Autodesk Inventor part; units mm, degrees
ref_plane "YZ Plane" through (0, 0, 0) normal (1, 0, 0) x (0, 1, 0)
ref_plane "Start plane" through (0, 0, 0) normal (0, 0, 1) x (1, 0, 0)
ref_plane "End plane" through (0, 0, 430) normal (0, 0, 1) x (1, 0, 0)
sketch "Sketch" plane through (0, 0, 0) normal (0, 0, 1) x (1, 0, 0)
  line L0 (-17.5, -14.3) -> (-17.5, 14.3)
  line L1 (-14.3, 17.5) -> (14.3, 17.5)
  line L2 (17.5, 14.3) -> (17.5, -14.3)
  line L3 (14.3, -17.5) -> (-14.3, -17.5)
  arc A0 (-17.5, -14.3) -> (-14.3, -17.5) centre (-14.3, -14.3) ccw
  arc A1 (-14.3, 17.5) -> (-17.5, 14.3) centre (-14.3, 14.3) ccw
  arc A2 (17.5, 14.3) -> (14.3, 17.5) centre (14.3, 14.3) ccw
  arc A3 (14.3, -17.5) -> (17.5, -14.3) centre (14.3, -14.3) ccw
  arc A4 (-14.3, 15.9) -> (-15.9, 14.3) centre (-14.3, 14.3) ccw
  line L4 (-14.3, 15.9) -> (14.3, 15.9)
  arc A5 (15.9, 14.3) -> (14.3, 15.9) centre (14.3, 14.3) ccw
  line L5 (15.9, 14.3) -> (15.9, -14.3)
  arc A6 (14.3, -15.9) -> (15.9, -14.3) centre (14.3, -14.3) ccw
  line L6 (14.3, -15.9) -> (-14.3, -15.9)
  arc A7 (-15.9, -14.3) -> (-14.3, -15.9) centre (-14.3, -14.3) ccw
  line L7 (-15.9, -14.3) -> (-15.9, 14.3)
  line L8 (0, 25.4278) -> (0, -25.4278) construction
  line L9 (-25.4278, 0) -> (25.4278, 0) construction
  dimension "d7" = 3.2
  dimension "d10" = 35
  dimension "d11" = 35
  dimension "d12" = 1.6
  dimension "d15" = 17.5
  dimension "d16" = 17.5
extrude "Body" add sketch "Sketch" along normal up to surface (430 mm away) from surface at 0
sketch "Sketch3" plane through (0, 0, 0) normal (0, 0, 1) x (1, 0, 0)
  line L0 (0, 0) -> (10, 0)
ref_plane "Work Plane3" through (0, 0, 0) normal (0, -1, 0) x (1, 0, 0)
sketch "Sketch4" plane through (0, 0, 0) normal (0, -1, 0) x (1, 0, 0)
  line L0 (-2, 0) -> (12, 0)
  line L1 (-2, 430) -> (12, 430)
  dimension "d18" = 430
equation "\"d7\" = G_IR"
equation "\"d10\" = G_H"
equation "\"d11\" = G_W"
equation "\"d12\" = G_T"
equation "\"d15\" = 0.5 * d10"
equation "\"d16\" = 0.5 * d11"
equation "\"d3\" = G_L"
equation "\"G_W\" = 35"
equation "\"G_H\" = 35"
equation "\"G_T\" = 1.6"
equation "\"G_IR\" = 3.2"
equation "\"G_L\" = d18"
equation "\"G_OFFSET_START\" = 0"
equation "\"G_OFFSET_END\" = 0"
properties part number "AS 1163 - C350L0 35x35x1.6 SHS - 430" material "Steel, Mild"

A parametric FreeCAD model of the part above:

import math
import FreeCAD as App
import Part
import Sketcher

V = App.Vector
Q = App.Units.Quantity

doc = App.newDocument("Part")
body = doc.addObject("PartDesign::Body", "Body")

# Sketch on XY plane
sketch1 = doc.addObject("Sketcher::SketchObject", "Sketch")
body.addObject(sketch1)
sketch1.AttachmentSupport = (doc.XY_Plane, [""])
sketch1.MapMode = "FlatFace"
sketch1.addGeometry([
    Part.LineSegment(V(-17.5, 14.3, 0), V(-17.5, -14.3, 0)),  # 0
    Part.ArcOfCircle(Part.Circle(V(-14.3, -14.3, 0), V(0, 0, 1), 3.2), math.radians(180), math.radians(270)),  # 1
    Part.LineSegment(V(-14.3, -17.5, 0), V(14.3, -17.5, 0)),  # 2
    Part.ArcOfCircle(Part.Circle(V(14.3, -14.3, 0), V(0, 0, 1), 3.2), math.radians(-90), math.radians(0)),  # 3
    Part.LineSegment(V(17.5, -14.3, 0), V(17.5, 14.3, 0)),  # 4
    Part.ArcOfCircle(Part.Circle(V(14.3, 14.3, 0), V(0, 0, 1), 3.2), math.radians(0), math.radians(90)),  # 5
    Part.LineSegment(V(14.3, 17.5, 0), V(-14.3, 17.5, 0)),  # 6
    Part.ArcOfCircle(Part.Circle(V(-14.3, 14.3, 0), V(0, 0, 1), 3.2), math.radians(90), math.radians(180)),  # 7
    Part.ArcOfCircle(Part.Circle(V(-14.3, 14.3, 0), V(0, 0, 1), 1.6), math.radians(90), math.radians(180)),  # 8
    Part.LineSegment(V(-14.3, 15.9, 0), V(14.3, 15.9, 0)),  # 9
    Part.ArcOfCircle(Part.Circle(V(14.3, 14.3, 0), V(0, 0, 1), 1.6), math.radians(0), math.radians(90)),  # 10
    Part.LineSegment(V(15.9, 14.3, 0), V(15.9, -14.3, 0)),  # 11
    Part.ArcOfCircle(Part.Circle(V(14.3, -14.3, 0), V(0, 0, 1), 1.6), math.radians(-90), math.radians(0)),  # 12
    Part.LineSegment(V(14.3, -15.9, 0), V(-14.3, -15.9, 0)),  # 13
    Part.ArcOfCircle(Part.Circle(V(-14.3, -14.3, 0), V(0, 0, 1), 1.6), math.radians(180), math.radians(270)),  # 14
    Part.LineSegment(V(-15.9, -14.3, 0), V(-15.9, 14.3, 0)),  # 15
], False)
sketch1.addConstraint([
    Sketcher.Constraint("Tangent", 0, 2, 1, 1),
    Sketcher.Constraint("Tangent", 1, 2, 2, 1),
    Sketcher.Constraint("Tangent", 2, 2, 3, 1),
    Sketcher.Constraint("Tangent", 3, 2, 4, 1),
    Sketcher.Constraint("Tangent", 4, 2, 5, 1),
    Sketcher.Constraint("Tangent", 5, 2, 6, 1),
    Sketcher.Constraint("Tangent", 6, 2, 7, 1),
    Sketcher.Constraint("Tangent", 7, 2, 0, 1),
    Sketcher.Constraint("Tangent", 8, 1, 9, 1),
    Sketcher.Constraint("Tangent", 9, 2, 10, 2),
    Sketcher.Constraint("Tangent", 10, 1, 11, 1),
    Sketcher.Constraint("Tangent", 11, 2, 12, 2),
    Sketcher.Constraint("Tangent", 12, 1, 13, 1),
    Sketcher.Constraint("Tangent", 13, 2, 14, 2),
    Sketcher.Constraint("Tangent", 14, 1, 15, 1),
    Sketcher.Constraint("Tangent", 15, 2, 8, 2),
    Sketcher.Constraint("Vertical", 0),
    Sketcher.Constraint("Horizontal", 2),
    Sketcher.Constraint("Vertical", 4),
    Sketcher.Constraint("Horizontal", 6),
    Sketcher.Constraint("Horizontal", 9),
    Sketcher.Constraint("Vertical", 11),
    Sketcher.Constraint("Horizontal", 13),
    Sketcher.Constraint("Vertical", 15),
    Sketcher.Constraint("Coincident", 8, 3, 7, 3),
    Sketcher.Constraint("Coincident", 10, 3, 5, 3),
    Sketcher.Constraint("Coincident", 12, 3, 3, 3),
    Sketcher.Constraint("Equal", 1, 3),
    Sketcher.Constraint("Equal", 3, 5),
    Sketcher.Constraint("Equal", 5, 7),
    Sketcher.Constraint("Equal", 12, 14),
    Sketcher.Constraint("Symmetric", 1, 3, 5, 3, -1, 1),
    Sketcher.Constraint("Equal", 13, 0),
    Sketcher.Constraint("Radius", 1, Q("3.2 mm")),
    Sketcher.Constraint("Radius", 8, Q("1.6 mm")),
    Sketcher.Constraint("DistanceX", 0, 2, -1, 1, Q("17.5 mm")),
])
pad1 = doc.addObject("PartDesign::Pad", "Pad")
body.addObject(pad1)
pad1.Profile = sketch1
pad1.Length = 430

doc.recompute()
